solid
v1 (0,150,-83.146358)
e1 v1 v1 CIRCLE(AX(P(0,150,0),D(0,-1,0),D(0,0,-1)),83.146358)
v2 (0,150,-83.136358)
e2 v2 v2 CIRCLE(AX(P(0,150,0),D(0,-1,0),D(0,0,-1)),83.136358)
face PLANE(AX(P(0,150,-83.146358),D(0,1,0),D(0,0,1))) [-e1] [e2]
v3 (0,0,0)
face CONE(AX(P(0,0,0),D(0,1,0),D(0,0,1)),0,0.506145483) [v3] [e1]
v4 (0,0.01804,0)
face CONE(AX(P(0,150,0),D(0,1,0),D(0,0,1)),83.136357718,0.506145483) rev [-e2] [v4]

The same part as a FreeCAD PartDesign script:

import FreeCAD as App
import Part
import Sketcher

V = App.Vector
Q = App.Units.Quantity


def add_polygon(sketch, points):
    """Adds a closed chain of lines whose ends are joined by coincident constraints."""
    first, n = sketch.GeometryCount, len(points)
    for a, b in zip(points, points[1:] + points[:1]):
        sketch.addGeometry(Part.LineSegment(App.Vector(*a, 0), App.Vector(*b, 0)), False)
    for i in range(n):
        sketch.addConstraint(Sketcher.Constraint("Coincident", first + i, 2, first + (i + 1) % n, 1))

doc = App.newDocument("Part")
body = doc.addObject("PartDesign::Body", "Body")

# Sketch on YZ plane
sketch1 = body.newObject("Sketcher::SketchObject", "Sketch")
sketch1.AttachmentSupport = (doc.getObject("YZ_Plane"), [""])
sketch1.MapMode = "FlatFace"
add_polygon(sketch1, [(0, 0), (150, -83.146), (150, -83.136), (0.018, 0)])  # lines 0-3
sketch1.addConstraint([
    Sketcher.Constraint("Vertical", 1),
    Sketcher.Constraint("Horizontal", 3),
    Sketcher.Constraint("Coincident", 3, 2, -1, 1),
    Sketcher.Constraint("Parallel", 0, 2),
    Sketcher.Constraint("Angle", 0, Q("-29 deg")),
    Sketcher.Constraint("DistanceX", -1, 1, 0, 2, Q("150 mm")),
    Sketcher.Constraint("DistanceY", 1, 1, 1, 2, Q("0.01 mm")),
])
revolution = body.newObject("PartDesign::Revolution", "Revolution")
revolution.Profile = sketch1
revolution.ReferenceAxis = (sketch1, ["H_Axis"])
revolution.Angle = 360

doc.recompute()
